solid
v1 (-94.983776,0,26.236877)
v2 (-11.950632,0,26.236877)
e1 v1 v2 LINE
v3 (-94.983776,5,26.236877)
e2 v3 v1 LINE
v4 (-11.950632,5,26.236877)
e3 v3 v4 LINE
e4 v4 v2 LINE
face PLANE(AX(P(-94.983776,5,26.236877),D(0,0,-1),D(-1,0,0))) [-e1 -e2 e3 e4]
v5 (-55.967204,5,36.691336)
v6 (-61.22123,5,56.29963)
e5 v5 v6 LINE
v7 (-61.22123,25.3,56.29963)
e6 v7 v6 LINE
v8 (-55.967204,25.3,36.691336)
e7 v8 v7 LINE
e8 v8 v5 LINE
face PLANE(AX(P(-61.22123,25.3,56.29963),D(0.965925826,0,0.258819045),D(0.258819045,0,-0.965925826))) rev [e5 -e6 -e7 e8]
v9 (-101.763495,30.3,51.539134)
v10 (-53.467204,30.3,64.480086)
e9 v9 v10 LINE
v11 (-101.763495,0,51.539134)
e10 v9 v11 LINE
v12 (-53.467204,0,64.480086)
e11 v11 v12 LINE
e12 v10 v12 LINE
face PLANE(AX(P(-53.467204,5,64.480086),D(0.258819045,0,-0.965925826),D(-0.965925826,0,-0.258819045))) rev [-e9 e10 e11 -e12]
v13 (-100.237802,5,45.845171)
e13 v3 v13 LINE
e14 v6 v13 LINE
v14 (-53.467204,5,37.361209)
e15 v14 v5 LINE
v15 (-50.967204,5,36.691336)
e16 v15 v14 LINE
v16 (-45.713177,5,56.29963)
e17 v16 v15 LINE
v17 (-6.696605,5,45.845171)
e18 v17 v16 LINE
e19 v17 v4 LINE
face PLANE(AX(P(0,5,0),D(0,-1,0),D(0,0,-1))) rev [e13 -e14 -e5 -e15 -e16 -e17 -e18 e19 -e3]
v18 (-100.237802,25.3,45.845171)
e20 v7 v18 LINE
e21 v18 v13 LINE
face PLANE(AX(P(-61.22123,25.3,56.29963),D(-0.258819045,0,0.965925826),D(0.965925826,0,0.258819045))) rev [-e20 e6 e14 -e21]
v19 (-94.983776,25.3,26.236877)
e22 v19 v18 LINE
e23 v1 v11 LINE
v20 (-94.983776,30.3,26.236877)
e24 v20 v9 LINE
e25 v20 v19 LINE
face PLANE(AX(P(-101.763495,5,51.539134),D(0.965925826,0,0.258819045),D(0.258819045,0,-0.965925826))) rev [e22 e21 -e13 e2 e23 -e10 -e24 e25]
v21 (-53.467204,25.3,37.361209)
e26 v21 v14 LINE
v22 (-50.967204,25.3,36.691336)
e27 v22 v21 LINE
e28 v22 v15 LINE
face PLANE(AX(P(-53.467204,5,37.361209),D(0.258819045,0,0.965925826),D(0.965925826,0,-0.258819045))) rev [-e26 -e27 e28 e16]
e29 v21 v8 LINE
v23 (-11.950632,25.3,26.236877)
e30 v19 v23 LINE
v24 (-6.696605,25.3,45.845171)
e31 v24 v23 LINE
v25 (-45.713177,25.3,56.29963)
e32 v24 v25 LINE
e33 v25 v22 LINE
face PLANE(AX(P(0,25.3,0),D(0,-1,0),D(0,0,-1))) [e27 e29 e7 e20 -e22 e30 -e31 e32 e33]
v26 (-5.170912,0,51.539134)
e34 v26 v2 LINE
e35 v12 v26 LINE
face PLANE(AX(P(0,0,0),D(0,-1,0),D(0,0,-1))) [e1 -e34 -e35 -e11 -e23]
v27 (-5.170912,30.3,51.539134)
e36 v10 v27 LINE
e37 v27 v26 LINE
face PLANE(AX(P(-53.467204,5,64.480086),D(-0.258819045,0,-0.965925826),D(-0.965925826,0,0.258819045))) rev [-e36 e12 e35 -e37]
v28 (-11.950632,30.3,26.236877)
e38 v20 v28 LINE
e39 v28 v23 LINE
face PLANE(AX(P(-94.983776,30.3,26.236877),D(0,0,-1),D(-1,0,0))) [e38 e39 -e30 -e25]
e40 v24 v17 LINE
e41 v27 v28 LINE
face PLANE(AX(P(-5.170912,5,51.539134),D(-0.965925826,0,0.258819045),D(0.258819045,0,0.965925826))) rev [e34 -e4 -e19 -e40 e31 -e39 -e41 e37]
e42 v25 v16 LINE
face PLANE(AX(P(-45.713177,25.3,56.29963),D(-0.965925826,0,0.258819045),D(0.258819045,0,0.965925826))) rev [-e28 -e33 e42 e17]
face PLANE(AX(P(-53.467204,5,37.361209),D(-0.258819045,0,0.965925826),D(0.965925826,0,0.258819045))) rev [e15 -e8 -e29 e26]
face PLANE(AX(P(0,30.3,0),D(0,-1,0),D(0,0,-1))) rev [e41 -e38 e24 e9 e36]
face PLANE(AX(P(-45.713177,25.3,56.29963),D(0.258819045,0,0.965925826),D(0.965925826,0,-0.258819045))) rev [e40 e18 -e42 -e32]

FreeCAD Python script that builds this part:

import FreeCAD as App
import Part
import Sketcher
from FreeCAD import Vector
Q = App.Units.Quantity

doc = App.newDocument("Part")
params = doc.addObject("Spreadsheet::Sheet", "Params")
for row, (alias, value) in enumerate([
    ("sketch1_length", "50 mm"),
    ("pad1_length", "5 mm"),
    ("sketch2_length", "50 mm"),
    ("sketch2_length2", "20.3 mm"),
    ("pad2_length", "20.3 mm"),
    ("sketch3_length", "50 mm"),
    ("pad3_length", "5 mm"),
    ("pad4_length", "5 mm"),
    ("pad5_length", "5 mm"),
], start=1):
    params.set(f"A{row}", alias)
    params.set(f"B{row}", "=" + value)
    params.setAlias(f"B{row}", alias)

body = doc.addObject("PartDesign::Body", "Body")

# Sketch on XZ plane
sketch1 = body.newObject("Sketcher::SketchObject", "Sketch")
sketch1.AttachmentSupport = (doc.getObject("XZ_Plane"), [""])
sketch1.MapMode = "FlatFace"
sketch1.addGeometry(Part.LineSegment(Vector(-53.467204, 64.480086, 0), Vector(-5.170912, 51.539134, 0)), False)
sketch1.addGeometry(Part.LineSegment(Vector(-5.170912, 51.539134, 0), Vector(-11.950632, 26.236877, 0)), False)
sketch1.addGeometry(Part.LineSegment(Vector(-11.950632, 26.236877, 0), Vector(-53.467204, 37.361209, 0)), False)
sketch1.addGeometry(Part.LineSegment(Vector(-53.467204, 37.361209, 0), Vector(-94.983776, 26.236877, 0)), False)
sketch1.addGeometry(Part.LineSegment(Vector(-94.983776, 26.236877, 0), Vector(-101.763495, 51.539134, 0)), False)
sketch1.addGeometry(Part.LineSegment(Vector(-101.763495, 51.539134, 0), Vector(-53.467204, 64.480086, 0)), False)
sketch1.addConstraint(Sketcher.Constraint("Coincident", 0, 2, 1, 1))
sketch1.addConstraint(Sketcher.Constraint("Coincident", 1, 2, 2, 1))
sketch1.addConstraint(Sketcher.Constraint("Coincident", 2, 2, 3, 1))
sketch1.addConstraint(Sketcher.Constraint("Coincident", 3, 2, 4, 1))
sketch1.addConstraint(Sketcher.Constraint("Coincident", 4, 2, 5, 1))
sketch1.addConstraint(Sketcher.Constraint("Coincident", 5, 2, 0, 1))
sketch1.addConstraint(Sketcher.Constraint("Perpendicular", 0, 1))
sketch1.addConstraint(Sketcher.Constraint("Perpendicular", 1, 2))
sketch1.addConstraint(Sketcher.Constraint("Perpendicular", 3, 4))
sketch1.addConstraint(Sketcher.Constraint("Perpendicular", 4, 5))
sketch1.addConstraint(Sketcher.Constraint("Horizontal", 1, 2, 3, 2))
sketch1.addConstraint(Sketcher.Constraint("Horizontal", 0, 2, 4, 2))
sketch1.addConstraint(Sketcher.Constraint("Vertical", 2, 2, 5, 2))
sketch1.addConstraint(Sketcher.Constraint("Angle", 0, Q("-15 deg")))
sketch1.addConstraint(Sketcher.Constraint("Distance", 0, Q("50 mm")))
sketch1.addConstraint(Sketcher.Constraint("Distance", 2, Q("42.981118 mm")))
sketch1.addConstraint(Sketcher.Constraint("DistanceX", 1, 2, -1, 1, Q("11.950632 mm")))
sketch1.addConstraint(Sketcher.Constraint("DistanceY", -1, 1, 2, 2, Q("37.361209 mm")))
sketch1.setExpression("Constraints[14]", "Params.sketch1_length")
pad1 = body.newObject("PartDesign::Pad", "Pad")
pad1.Profile = sketch1
pad1.setExpression("Length", "Params.pad1_length")
pad1.Reversed = True

# Sketch on XZ plane
sketch2 = body.newObject("Sketcher::SketchObject", "Sketch001")
sketch2.AttachmentSupport = (doc.getObject("XZ_Plane"), [""])
sketch2.MapMode = "FlatFace"
sketch2.AttachmentOffset = App.Placement(Vector(0, 0, -5), App.Rotation())
sketch2.addGeometry(Part.LineSegment(Vector(-6.696605, 45.845171, 0), Vector(-45.713177, 56.29963, 0)), False)
sketch2.addGeometry(Part.LineSegment(Vector(-45.713177, 56.29963, 0), Vector(-50.967204, 36.691336, 0)), False)
sketch2.addGeometry(Part.LineSegment(Vector(-50.967204, 36.691336, 0), Vector(-53.467204, 37.361209, 0)), False)
sketch2.addGeometry(Part.LineSegment(Vector(-53.467204, 37.361209, 0), Vector(-55.967204, 36.691336, 0)), False)
sketch2.addGeometry(Part.LineSegment(Vector(-55.967204, 36.691336, 0), Vector(-61.22123, 56.29963, 0)), False)
sketch2.addGeometry(Part.LineSegment(Vector(-61.22123, 56.29963, 0), Vector(-100.237802, 45.845171, 0)), False)
sketch2.addGeometry(Part.LineSegment(Vector(-100.237802, 45.845171, 0), Vector(-101.763495, 51.539134, 0)), False)
sketch2.addGeometry(Part.LineSegment(Vector(-101.763495, 51.539134, 0), Vector(-53.467204, 64.480086, 0)), False)
sketch2.addGeometry(Part.LineSegment(Vector(-53.467204, 64.480086, 0), Vector(-5.170912, 51.539134, 0)), False)
sketch2.addGeometry(Part.LineSegment(Vector(-5.170912, 51.539134, 0), Vector(-6.696605, 45.845171, 0)), False)
sketch2.addConstraint(Sketcher.Constraint("Coincident", 0, 2, 1, 1))
sketch2.addConstraint(Sketcher.Constraint("Coincident", 1, 2, 2, 1))
sketch2.addConstraint(Sketcher.Constraint("Coincident", 2, 2, 3, 1))
sketch2.addConstraint(Sketcher.Constraint("Coincident", 3, 2, 4, 1))
sketch2.addConstraint(Sketcher.Constraint("Coincident", 4, 2, 5, 1))
sketch2.addConstraint(Sketcher.Constraint("Coincident", 5, 2, 6, 1))
sketch2.addConstraint(Sketcher.Constraint("Coincident", 6, 2, 7, 1))
sketch2.addConstraint(Sketcher.Constraint("Coincident", 7, 2, 8, 1))
sketch2.addConstraint(Sketcher.Constraint("Coincident", 8, 2, 9, 1))
sketch2.addConstraint(Sketcher.Constraint("Coincident", 9, 2, 0, 1))
sketch2.addConstraint(Sketcher.Constraint("Perpendicular", 0, 1))
sketch2.addConstraint(Sketcher.Constraint("Perpendicular", 1, 2))
sketch2.addConstraint(Sketcher.Constraint("Perpendicular", 3, 4))
sketch2.addConstraint(Sketcher.Constraint("Perpendicular", 4, 5))
sketch2.addConstraint(Sketcher.Constraint("Perpendicular", 5, 6))
sketch2.addConstraint(Sketcher.Constraint("Perpendicular", 6, 7))
sketch2.addConstraint(Sketcher.Constraint("Parallel", 2, 8))
sketch2.addConstraint(Sketcher.Constraint("Perpendicular", 8, 9))
sketch2.addConstraint(Sketcher.Constraint("Horizontal", 1, 2, 3, 2))
sketch2.addConstraint(Sketcher.Constraint("Horizontal", 0, 2, 4, 2))
sketch2.addConstraint(Sketcher.Constraint("Horizontal", 6, 2, 8, 2))
sketch2.addConstraint(Sketcher.Constraint("Horizontal", 5, 2, 9, 2))
sketch2.addConstraint(Sketcher.Constraint("Vertical", 2, 2, 7, 2))
sketch2.addConstraint(Sketcher.Constraint("Angle", 0, Q("165 deg")))
sketch2.addConstraint(Sketcher.Constraint("Distance", 7, Q("50 mm")))
sketch2.addConstraint(Sketcher.Constraint("DistanceX", 3, 2, 1, 2, Q("5 mm")))
sketch2.addConstraint(Sketcher.Constraint("Distance", 1, Q("20.3 mm")))
sketch2.addConstraint(Sketcher.Constraint("DistanceX", 5, 2, 3, 2, Q("44.270599 mm")))
sketch2.addConstraint(Sketcher.Constraint("DistanceY", -1, 1, 0, 2, Q("56.29963 mm")))
sketch2.addConstraint(Sketcher.Constraint("DistanceX", 4, 2, -1, 1, Q("61.22123 mm")))
sketch2.setExpression("Constraints[24]", "Params.sketch2_length")
sketch2.setExpression("Constraints[26]", "Params.sketch2_length2")
pad2 = body.newObject("PartDesign::Pad", "Pad001")
pad2.Profile = sketch2
pad2.setExpression("Length", "Params.pad2_length")
pad2.Reversed = True

# Sketch on XZ plane
sketch3 = body.newObject("Sketcher::SketchObject", "Sketch002")
sketch3.AttachmentSupport = (doc.getObject("XZ_Plane"), [""])
sketch3.MapMode = "FlatFace"
sketch3.AttachmentOffset = App.Placement(Vector(0, 0, -25.3), App.Rotation())
sketch3.addGeometry(Part.LineSegment(Vector(-5.170912, 51.539134, 0), Vector(-11.950632, 26.236877, 0)), False)
sketch3.addGeometry(Part.LineSegment(Vector(-11.950632, 26.236877, 0), Vector(-53.467204, 37.361209, 0)), False)
sketch3.addGeometry(Part.LineSegment(Vector(-53.467204, 37.361209, 0), Vector(-94.983776, 26.236877, 0)), False)
sketch3.addGeometry(Part.LineSegment(Vector(-94.983776, 26.236877, 0), Vector(-101.763495, 51.539134, 0)), False)
sketch3.addGeometry(Part.LineSegment(Vector(-101.763495, 51.539134, 0), Vector(-53.467204, 64.480086, 0)), False)
sketch3.addGeometry(Part.LineSegment(Vector(-53.467204, 64.480086, 0), Vector(-5.170912, 51.539134, 0)), False)
sketch3.addConstraint(Sketcher.Constraint("Coincident", 0, 2, 1, 1))
sketch3.addConstraint(Sketcher.Constraint("Coincident", 1, 2, 2, 1))
sketch3.addConstraint(Sketcher.Constraint("Coincident", 2, 2, 3, 1))
sketch3.addConstraint(Sketcher.Constraint("Coincident", 3, 2, 4, 1))
sketch3.addConstraint(Sketcher.Constraint("Coincident", 4, 2, 5, 1))
sketch3.addConstraint(Sketcher.Constraint("Coincident", 5, 2, 0, 1))
sketch3.addConstraint(Sketcher.Constraint("Perpendicular", 0, 1))
sketch3.addConstraint(Sketcher.Constraint("Perpendicular", 2, 3))
sketch3.addConstraint(Sketcher.Constraint("Perpendicular", 3, 4))
sketch3.addConstraint(Sketcher.Constraint("Parallel", 1, 5))
sketch3.addConstraint(Sketcher.Constraint("Horizontal", 0, 2, 2, 2))
sketch3.addConstraint(Sketcher.Constraint("Horizontal", 3, 2, 5, 2))
sketch3.addConstraint(Sketcher.Constraint("Vertical", 1, 2, 4, 2))
sketch3.addConstraint(Sketcher.Constraint("Angle", 0, Q("-105 deg")))
sketch3.addConstraint(Sketcher.Constraint("Distance", 4, Q("50 mm")))
sketch3.addConstraint(Sketcher.Constraint("Distance", 1, Q("42.981118 mm")))
sketch3.addConstraint(Sketcher.Constraint("DistanceX", 0, 2, -1, 1, Q("11.950632 mm")))
sketch3.addConstraint(Sketcher.Constraint("DistanceY", -1, 1, 1, 2, Q("37.361209 mm")))
sketch3.setExpression("Constraints[14]", "Params.sketch3_length")
pad3 = body.newObject("PartDesign::Pad", "Pad002")
pad3.Profile = sketch3
pad3.setExpression("Length", "Params.pad3_length")
pad3.Reversed = True

# Sketch on XZ plane
sketch4 = body.newObject("Sketcher::SketchObject", "Sketch003")
sketch4.AttachmentSupport = (doc.getObject("XZ_Plane"), [""])
sketch4.MapMode = "FlatFace"
sketch4.AttachmentOffset = App.Placement(Vector(0, 0, -25.3), App.Rotation())
sketch4.addGeometry(Part.LineSegment(Vector(-94.983776, 26.236877, 0), Vector(-11.950632, 26.236877, 0)), False)
sketch4.addGeometry(Part.LineSegment(Vector(-11.950632, 26.236877, 0), Vector(-53.467204, 37.361209, 0)), False)
sketch4.addGeometry(Part.LineSegment(Vector(-53.467204, 37.361209, 0), Vector(-94.983776, 26.236877, 0)), False)
sketch4.addConstraint(Sketcher.Constraint("Coincident", 0, 2, 1, 1))
sketch4.addConstraint(Sketcher.Constraint("Coincident", 1, 2, 2, 1))
sketch4.addConstraint(Sketcher.Constraint("Coincident", 2, 2, 0, 1))
sketch4.addConstraint(Sketcher.Constraint("Horizontal", 0))
sketch4.addConstraint(Sketcher.Constraint("Equal", 1, 2))
sketch4.addConstraint(Sketcher.Constraint("Angle", 1, Q("165 deg")))
sketch4.addConstraint(Sketcher.Constraint("Distance", 1, Q("42.981118 mm")))
sketch4.addConstraint(Sketcher.Constraint("DistanceX", 0, 2, -1, 1, Q("11.950632 mm")))
sketch4.addConstraint(Sketcher.Constraint("DistanceY", -1, 1, 1, 2, Q("37.361209 mm")))
pad4 = body.newObject("PartDesign::Pad", "Pad003")
pad4.Profile = sketch4
pad4.setExpression("Length", "Params.pad4_length")
pad4.Reversed = True

# Sketch on XZ plane
sketch5 = body.newObject("Sketcher::SketchObject", "Sketch004")
sketch5.AttachmentSupport = (doc.getObject("XZ_Plane"), [""])
sketch5.MapMode = "FlatFace"
sketch5.addGeometry(Part.LineSegment(Vector(-11.950632, 26.236877, 0), Vector(-53.467204, 37.361209, 0)), False)
sketch5.addGeometry(Part.LineSegment(Vector(-53.467204, 37.361209, 0), Vector(-94.983776, 26.236877, 0)), False)
sketch5.addGeometry(Part.LineSegment(Vector(-94.983776, 26.236877, 0), Vector(-11.950632, 26.236877, 0)), False)
sketch5.addConstraint(Sketcher.Constraint("Coincident", 0, 2, 1, 1))
sketch5.addConstraint(Sketcher.Constraint("Coincident", 1, 2, 2, 1))
sketch5.addConstraint(Sketcher.Constraint("Coincident", 2, 2, 0, 1))
sketch5.addConstraint(Sketcher.Constraint("Horizontal", 2))
sketch5.addConstraint(Sketcher.Constraint("Equal", 0, 1))
sketch5.addConstraint(Sketcher.Constraint("Angle", 0, Q("165 deg")))
sketch5.addConstraint(Sketcher.Constraint("Distance", 0, Q("42.981118 mm")))
sketch5.addConstraint(Sketcher.Constraint("DistanceY", -1, 1, 0, 2, Q("37.361209 mm")))
sketch5.addConstraint(Sketcher.Constraint("DistanceX", 2, 2, -1, 1, Q("11.950632 mm")))
pad5 = body.newObject("PartDesign::Pad", "Pad004")
pad5.Profile = sketch5
pad5.setExpression("Length", "Params.pad5_length")
pad5.Reversed = True

doc.recompute()
